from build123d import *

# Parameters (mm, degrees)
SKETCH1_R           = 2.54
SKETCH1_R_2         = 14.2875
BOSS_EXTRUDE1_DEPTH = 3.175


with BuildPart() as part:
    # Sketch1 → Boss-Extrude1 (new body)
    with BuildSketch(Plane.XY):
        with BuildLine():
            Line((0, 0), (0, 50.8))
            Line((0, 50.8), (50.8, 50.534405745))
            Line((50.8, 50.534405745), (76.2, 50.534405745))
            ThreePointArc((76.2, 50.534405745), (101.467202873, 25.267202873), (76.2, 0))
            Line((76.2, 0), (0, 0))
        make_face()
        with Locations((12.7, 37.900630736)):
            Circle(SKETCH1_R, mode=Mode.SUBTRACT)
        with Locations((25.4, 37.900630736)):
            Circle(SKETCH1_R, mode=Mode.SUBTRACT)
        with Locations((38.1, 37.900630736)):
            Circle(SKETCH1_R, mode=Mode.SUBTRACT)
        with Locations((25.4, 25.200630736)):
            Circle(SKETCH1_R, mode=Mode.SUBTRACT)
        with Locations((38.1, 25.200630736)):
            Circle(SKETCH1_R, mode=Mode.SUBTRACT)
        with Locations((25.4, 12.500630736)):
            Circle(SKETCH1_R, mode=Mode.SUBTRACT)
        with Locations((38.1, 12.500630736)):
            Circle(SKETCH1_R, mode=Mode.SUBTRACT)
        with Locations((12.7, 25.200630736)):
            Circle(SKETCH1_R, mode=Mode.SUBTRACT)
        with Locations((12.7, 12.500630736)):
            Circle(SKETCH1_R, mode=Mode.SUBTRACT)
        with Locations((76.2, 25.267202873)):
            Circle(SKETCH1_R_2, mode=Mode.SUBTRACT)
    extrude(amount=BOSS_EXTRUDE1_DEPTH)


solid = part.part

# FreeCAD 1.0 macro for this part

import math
import FreeCAD as App
import Part
import Sketcher
from FreeCAD import Vector
Q = App.Units.Quantity

doc = App.newDocument("Part")
body = doc.addObject("PartDesign::Body", "Body")

# Sketch on XY plane
sketch1 = doc.addObject("Sketcher::SketchObject", "Sketch")
body.addObject(sketch1)
sketch1.AttachmentSupport = (doc.XY_Plane, [""])
sketch1.MapMode = "FlatFace"
sketch1.addGeometry(Part.LineSegment(Vector(0, 50.8, 0), Vector(0, 0, 0)), False)
sketch1.addGeometry(Part.LineSegment(Vector(0, 0, 0), Vector(76.2, 0, 0)), False)
sketch1.addGeometry(Part.ArcOfCircle(Part.Circle(Vector(76.2, 25.3, 0), Vector(0, 0, 1), 25.3), math.radians(-90), math.radians(90)), False)
sketch1.addGeometry(Part.LineSegment(Vector(76.2, 50.5, 0), Vector(50.8, 50.5, 0)), False)
sketch1.addGeometry(Part.LineSegment(Vector(50.8, 50.5, 0), Vector(0, 50.8, 0)), False)
sketch1.addGeometry(Part.Circle(Vector(38.1, 12.5, 0), Vector(0, 0, 1), 2.5), False)
sketch1.addGeometry(Part.Circle(Vector(25.4, 12.5, 0), Vector(0, 0, 1), 2.5), False)
sketch1.addGeometry(Part.Circle(Vector(12.7, 12.5, 0), Vector(0, 0, 1), 2.5), False)
sketch1.addGeometry(Part.Circle(Vector(76.2, 25.3, 0), Vector(0, 0, 1), 14.3), False)
sketch1.addGeometry(Part.Circle(Vector(38.1, 25.2, 0), Vector(0, 0, 1), 2.5), False)
sketch1.addGeometry(Part.Circle(Vector(25.4, 25.2, 0), Vector(0, 0, 1), 2.5), False)
sketch1.addGeometry(Part.Circle(Vector(12.7, 25.2, 0), Vector(0, 0, 1), 2.5), False)
sketch1.addGeometry(Part.Circle(Vector(38.1, 37.9, 0), Vector(0, 0, 1), 2.5), False)
sketch1.addGeometry(Part.Circle(Vector(25.4, 37.9, 0), Vector(0, 0, 1), 2.5), False)
sketch1.addGeometry(Part.Circle(Vector(12.7, 37.9, 0), Vector(0, 0, 1), 2.5), False)
sketch1.addConstraint(Sketcher.Constraint("Coincident", 0, 2, 1, 1))
sketch1.addConstraint(Sketcher.Constraint("Tangent", 1, 2, 2, 1))
sketch1.addConstraint(Sketcher.Constraint("Tangent", 2, 2, 3, 1))
sketch1.addConstraint(Sketcher.Constraint("Coincident", 3, 2, 4, 1))
sketch1.addConstraint(Sketcher.Constraint("Coincident", 4, 2, 0, 1))
sketch1.addConstraint(Sketcher.Constraint("Vertical", 0))
sketch1.addConstraint(Sketcher.Constraint("Horizontal", 1))
sketch1.addConstraint(Sketcher.Constraint("Horizontal", 3))
sketch1.addConstraint(Sketcher.Constraint("Coincident", 0, 2, -1, 1))
sketch1.addConstraint(Sketcher.Constraint("Coincident", 8, 3, 2, 3))
sketch1.addConstraint(Sketcher.Constraint("Equal", 5, 6))
sketch1.addConstraint(Sketcher.Constraint("Equal", 6, 7))
sketch1.addConstraint(Sketcher.Constraint("Equal", 7, 9))
sketch1.addConstraint(Sketcher.Constraint("Equal", 9, 10))
sketch1.addConstraint(Sketcher.Constraint("Equal", 10, 11))
sketch1.addConstraint(Sketcher.Constraint("Equal", 11, 12))
sketch1.addConstraint(Sketcher.Constraint("Equal", 12, 13))
sketch1.addConstraint(Sketcher.Constraint("Equal", 13, 14))
sketch1.addConstraint(Sketcher.Constraint("Horizontal", 5, 3, 6, 3))
sketch1.addConstraint(Sketcher.Constraint("Horizontal", 6, 3, 7, 3))
sketch1.addConstraint(Sketcher.Constraint("Horizontal", 9, 3, 10, 3))
sketch1.addConstraint(Sketcher.Constraint("Horizontal", 10, 3, 11, 3))
sketch1.addConstraint(Sketcher.Constraint("Horizontal", 12, 3, 13, 3))
sketch1.addConstraint(Sketcher.Constraint("Horizontal", 13, 3, 14, 3))
sketch1.addConstraint(Sketcher.Constraint("Vertical", 5, 3, 9, 3))
sketch1.addConstraint(Sketcher.Constraint("Vertical", 6, 3, 10, 3))
sketch1.addConstraint(Sketcher.Constraint("Vertical", 7, 3, 11, 3))
sketch1.addConstraint(Sketcher.Constraint("Vertical", 9, 3, 12, 3))
sketch1.addConstraint(Sketcher.Constraint("Vertical", 10, 3, 13, 3))
sketch1.addConstraint(Sketcher.Constraint("Vertical", 11, 3, 14, 3))
sketch1.addConstraint(Sketcher.Constraint("Diameter", 5, Q("0.2 in")))
sketch1.addConstraint(Sketcher.Constraint("DistanceX", 1, 1, 1, 2, Q("3 in")))
sketch1.addConstraint(Sketcher.Constraint("DistanceX", 3, 2, 3, 1, Q("1 in")))
sketch1.addConstraint(Sketcher.Constraint("DistanceY", 0, 2, 0, 1, Q("2 in")))
sketch1.addConstraint(Sketcher.Constraint("Diameter", 8, Q("1.125 in")))
sketch1.addConstraint(Sketcher.Constraint("DistanceX", -1, 1, 6, 3, Q("1 in")))
sketch1.addConstraint(Sketcher.Constraint("DistanceX", 7, 3, 5, 3, Q("1 in")))
sketch1.addConstraint(Sketcher.Constraint("DistanceY", 5, 3, 12, 3, Q("1 in")))
sketch1.addConstraint(Sketcher.Constraint("DistanceX", -1, 1, 5, 3, Q("1.5 in")))
sketch1.addConstraint(Sketcher.Constraint("DistanceY", 5, 3, 9, 3, Q("0.5 in")))
sketch1.addConstraint(Sketcher.Constraint("Radius", 2, 25.267203))
sketch1.addConstraint(Sketcher.Constraint("DistanceY", -1, 1, 5, 3, 12.500631))
pad1 = doc.addObject("PartDesign::Pad", "Pad")
body.addObject(pad1)
pad1.Profile = sketch1
pad1.Length = Q("0.125 in")

doc.recompute()
